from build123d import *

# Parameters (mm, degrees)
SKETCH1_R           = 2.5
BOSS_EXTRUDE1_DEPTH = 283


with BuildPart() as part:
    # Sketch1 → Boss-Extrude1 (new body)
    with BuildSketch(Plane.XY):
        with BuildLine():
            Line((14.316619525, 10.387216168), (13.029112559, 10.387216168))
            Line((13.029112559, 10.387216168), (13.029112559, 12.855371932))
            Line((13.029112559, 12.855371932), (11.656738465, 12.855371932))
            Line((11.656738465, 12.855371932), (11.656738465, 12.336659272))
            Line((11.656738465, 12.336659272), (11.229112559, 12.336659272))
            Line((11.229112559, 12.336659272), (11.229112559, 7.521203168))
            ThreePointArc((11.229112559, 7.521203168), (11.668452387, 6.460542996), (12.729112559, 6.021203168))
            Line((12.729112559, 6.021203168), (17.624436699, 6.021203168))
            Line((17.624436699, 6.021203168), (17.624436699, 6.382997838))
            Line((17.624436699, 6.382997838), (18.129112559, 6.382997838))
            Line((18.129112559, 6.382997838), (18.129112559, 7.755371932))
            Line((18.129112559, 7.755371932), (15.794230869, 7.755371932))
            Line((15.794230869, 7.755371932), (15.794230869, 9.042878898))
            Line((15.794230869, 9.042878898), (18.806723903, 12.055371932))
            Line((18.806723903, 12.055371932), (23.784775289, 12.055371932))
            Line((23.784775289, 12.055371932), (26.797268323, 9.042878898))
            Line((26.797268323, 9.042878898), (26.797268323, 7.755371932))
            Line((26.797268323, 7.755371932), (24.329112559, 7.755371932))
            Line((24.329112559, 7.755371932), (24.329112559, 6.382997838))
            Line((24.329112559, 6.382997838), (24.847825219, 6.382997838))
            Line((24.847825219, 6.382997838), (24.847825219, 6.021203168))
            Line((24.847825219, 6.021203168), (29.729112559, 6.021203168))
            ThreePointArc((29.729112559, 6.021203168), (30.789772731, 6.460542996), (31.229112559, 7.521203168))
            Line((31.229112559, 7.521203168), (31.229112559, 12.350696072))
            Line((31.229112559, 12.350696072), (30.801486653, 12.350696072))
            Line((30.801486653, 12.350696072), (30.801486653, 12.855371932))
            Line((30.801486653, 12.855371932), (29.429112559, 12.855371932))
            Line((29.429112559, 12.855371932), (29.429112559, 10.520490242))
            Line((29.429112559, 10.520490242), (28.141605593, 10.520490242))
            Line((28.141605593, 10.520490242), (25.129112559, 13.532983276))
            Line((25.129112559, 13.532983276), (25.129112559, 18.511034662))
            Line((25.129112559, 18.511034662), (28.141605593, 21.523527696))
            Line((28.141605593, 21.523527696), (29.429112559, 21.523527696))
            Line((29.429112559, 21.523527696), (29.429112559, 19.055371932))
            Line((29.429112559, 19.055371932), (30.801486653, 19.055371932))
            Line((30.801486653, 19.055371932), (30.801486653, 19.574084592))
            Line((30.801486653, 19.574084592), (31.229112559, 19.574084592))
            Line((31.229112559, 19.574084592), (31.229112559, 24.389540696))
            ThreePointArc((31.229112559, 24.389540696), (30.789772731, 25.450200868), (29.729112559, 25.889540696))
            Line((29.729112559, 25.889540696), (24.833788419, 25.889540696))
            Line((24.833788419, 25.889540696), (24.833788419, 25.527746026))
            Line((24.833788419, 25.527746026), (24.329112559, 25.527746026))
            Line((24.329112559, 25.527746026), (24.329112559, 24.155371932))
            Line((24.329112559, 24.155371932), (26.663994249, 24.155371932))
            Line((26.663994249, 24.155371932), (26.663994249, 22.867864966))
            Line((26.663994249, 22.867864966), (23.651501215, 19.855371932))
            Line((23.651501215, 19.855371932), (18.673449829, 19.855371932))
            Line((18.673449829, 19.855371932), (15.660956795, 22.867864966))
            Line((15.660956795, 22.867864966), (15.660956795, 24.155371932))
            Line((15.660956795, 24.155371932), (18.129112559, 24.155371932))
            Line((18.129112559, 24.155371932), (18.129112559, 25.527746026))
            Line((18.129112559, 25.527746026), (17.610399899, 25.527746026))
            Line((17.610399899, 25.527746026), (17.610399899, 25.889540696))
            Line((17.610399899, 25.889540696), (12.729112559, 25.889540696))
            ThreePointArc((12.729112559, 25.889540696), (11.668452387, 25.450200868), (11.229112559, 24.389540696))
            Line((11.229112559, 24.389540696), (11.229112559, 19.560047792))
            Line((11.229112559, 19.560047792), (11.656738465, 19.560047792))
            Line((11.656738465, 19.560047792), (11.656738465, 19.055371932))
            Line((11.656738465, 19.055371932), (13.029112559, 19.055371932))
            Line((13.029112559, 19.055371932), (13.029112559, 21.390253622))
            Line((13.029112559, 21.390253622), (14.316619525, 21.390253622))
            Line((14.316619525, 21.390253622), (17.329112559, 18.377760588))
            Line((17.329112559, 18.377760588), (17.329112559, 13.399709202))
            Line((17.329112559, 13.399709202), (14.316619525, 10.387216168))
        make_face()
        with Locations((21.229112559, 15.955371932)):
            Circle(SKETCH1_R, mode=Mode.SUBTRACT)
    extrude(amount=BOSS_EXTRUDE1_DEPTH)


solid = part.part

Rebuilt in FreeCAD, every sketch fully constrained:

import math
import FreeCAD as App
import Part
import Sketcher

V = App.Vector

doc = App.newDocument("Part")
params = doc.addObject("Spreadsheet::Sheet", "Params")
for row, (alias, value) in enumerate([
    ("sketch1_diameter", "5 mm"),
    ("sketch1_radius", "1.5 mm"),
    ("pad1_length", "283 mm"),
], start=1):
    params.set(f"A{row}", alias)
    params.set(f"B{row}", "=" + value)
    params.setAlias(f"B{row}", alias)

body = doc.addObject("PartDesign::Body", "Body")

# Sketch on XY plane
sketch1 = body.newObject("Sketcher::SketchObject", "Sketch")
sketch1.AttachmentSupport = (doc.getObject("XY_Plane"), [""])
sketch1.MapMode = "FlatFace"
sketch1.addGeometry(Part.LineSegment(V(14.31662, 10.387216, 0), V(13.029113, 10.387216, 0)), False)
sketch1.addGeometry(Part.LineSegment(V(13.029113, 10.387216, 0), V(13.029113, 12.855372, 0)), False)
sketch1.addGeometry(Part.LineSegment(V(13.029113, 12.855372, 0), V(11.656738, 12.855372, 0)), False)
sketch1.addGeometry(Part.LineSegment(V(11.656738, 12.855372, 0), V(11.656738, 12.336659, 0)), False)
sketch1.addGeometry(Part.LineSegment(V(11.656738, 12.336659, 0), V(11.229113, 12.336659, 0)), False)
sketch1.addGeometry(Part.LineSegment(V(11.229113, 12.336659, 0), V(11.229113, 7.521203, 0)), False)
sketch1.addGeometry(Part.ArcOfCircle(Part.Circle(V(12.729113, 7.521203, 0), V(0, 0, 1), 1.5), math.radians(180), math.radians(270)), False)
sketch1.addGeometry(Part.LineSegment(V(12.729113, 6.021203, 0), V(17.624437, 6.021203, 0)), False)
sketch1.addGeometry(Part.LineSegment(V(17.624437, 6.021203, 0), V(17.624437, 6.382998, 0)), False)
sketch1.addGeometry(Part.LineSegment(V(17.624437, 6.382998, 0), V(18.129113, 6.382998, 0)), False)
sketch1.addGeometry(Part.LineSegment(V(18.129113, 6.382998, 0), V(18.129113, 7.755372, 0)), False)
sketch1.addGeometry(Part.LineSegment(V(18.129113, 7.755372, 0), V(15.794231, 7.755372, 0)), False)
sketch1.addGeometry(Part.LineSegment(V(15.794231, 7.755372, 0), V(15.794231, 9.042879, 0)), False)
sketch1.addGeometry(Part.LineSegment(V(15.794231, 9.042879, 0), V(18.806724, 12.055372, 0)), False)
sketch1.addGeometry(Part.LineSegment(V(18.806724, 12.055372, 0), V(23.784775, 12.055372, 0)), False)
sketch1.addGeometry(Part.LineSegment(V(23.784775, 12.055372, 0), V(26.797268, 9.042879, 0)), False)
sketch1.addGeometry(Part.LineSegment(V(26.797268, 9.042879, 0), V(26.797268, 7.755372, 0)), False)
sketch1.addGeometry(Part.LineSegment(V(26.797268, 7.755372, 0), V(24.329113, 7.755372, 0)), False)
sketch1.addGeometry(Part.LineSegment(V(24.329113, 7.755372, 0), V(24.329113, 6.382998, 0)), False)
sketch1.addGeometry(Part.LineSegment(V(24.329113, 6.382998, 0), V(24.847825, 6.382998, 0)), False)
sketch1.addGeometry(Part.LineSegment(V(24.847825, 6.382998, 0), V(24.847825, 6.021203, 0)), False)
sketch1.addGeometry(Part.LineSegment(V(24.847825, 6.021203, 0), V(29.729113, 6.021203, 0)), False)
sketch1.addGeometry(Part.ArcOfCircle(Part.Circle(V(29.729113, 7.521203, 0), V(0, 0, 1), 1.5), math.radians(-90), math.radians(0)), False)
sketch1.addGeometry(Part.LineSegment(V(31.229113, 7.521203, 0), V(31.229113, 12.350696, 0)), False)
sketch1.addGeometry(Part.LineSegment(V(31.229113, 12.350696, 0), V(30.801487, 12.350696, 0)), False)
sketch1.addGeometry(Part.LineSegment(V(30.801487, 12.350696, 0), V(30.801487, 12.855372, 0)), False)
sketch1.addGeometry(Part.LineSegment(V(30.801487, 12.855372, 0), V(29.429113, 12.855372, 0)), False)
sketch1.addGeometry(Part.LineSegment(V(29.429113, 12.855372, 0), V(29.429113, 10.52049, 0)), False)
sketch1.addGeometry(Part.LineSegment(V(29.429113, 10.52049, 0), V(28.141606, 10.52049, 0)), False)
sketch1.addGeometry(Part.LineSegment(V(28.141606, 10.52049, 0), V(25.129113, 13.532983, 0)), False)
sketch1.addGeometry(Part.LineSegment(V(25.129113, 13.532983, 0), V(25.129113, 18.511035, 0)), False)
sketch1.addGeometry(Part.LineSegment(V(25.129113, 18.511035, 0), V(28.141606, 21.523528, 0)), False)
sketch1.addGeometry(Part.LineSegment(V(28.141606, 21.523528, 0), V(29.429113, 21.523528, 0)), False)
sketch1.addGeometry(Part.LineSegment(V(29.429113, 21.523528, 0), V(29.429113, 19.055372, 0)), False)
sketch1.addGeometry(Part.LineSegment(V(29.429113, 19.055372, 0), V(30.801487, 19.055372, 0)), False)
sketch1.addGeometry(Part.LineSegment(V(30.801487, 19.055372, 0), V(30.801487, 19.574085, 0)), False)
sketch1.addGeometry(Part.LineSegment(V(30.801487, 19.574085, 0), V(31.229113, 19.574085, 0)), False)
sketch1.addGeometry(Part.LineSegment(V(31.229113, 19.574085, 0), V(31.229113, 24.389541, 0)), False)
sketch1.addGeometry(Part.ArcOfCircle(Part.Circle(V(29.729113, 24.389541, 0), V(0, 0, 1), 1.5), math.radians(0), math.radians(90)), False)
sketch1.addGeometry(Part.LineSegment(V(29.729113, 25.889541, 0), V(24.833788, 25.889541, 0)), False)
sketch1.addGeometry(Part.LineSegment(V(24.833788, 25.889541, 0), V(24.833788, 25.527746, 0)), False)
sketch1.addGeometry(Part.LineSegment(V(24.833788, 25.527746, 0), V(24.329113, 25.527746, 0)), False)
sketch1.addGeometry(Part.LineSegment(V(24.329113, 25.527746, 0), V(24.329113, 24.155372, 0)), False)
sketch1.addGeometry(Part.LineSegment(V(24.329113, 24.155372, 0), V(26.663994, 24.155372, 0)), False)
sketch1.addGeometry(Part.LineSegment(V(26.663994, 24.155372, 0), V(26.663994, 22.867865, 0)), False)
sketch1.addGeometry(Part.LineSegment(V(26.663994, 22.867865, 0), V(23.651501, 19.855372, 0)), False)
sketch1.addGeometry(Part.LineSegment(V(23.651501, 19.855372, 0), V(18.67345, 19.855372, 0)), False)
sketch1.addGeometry(Part.LineSegment(V(18.67345, 19.855372, 0), V(15.660957, 22.867865, 0)), False)
sketch1.addGeometry(Part.LineSegment(V(15.660957, 22.867865, 0), V(15.660957, 24.155372, 0)), False)
sketch1.addGeometry(Part.LineSegment(V(15.660957, 24.155372, 0), V(18.129113, 24.155372, 0)), False)
sketch1.addGeometry(Part.LineSegment(V(18.129113, 24.155372, 0), V(18.129113, 25.527746, 0)), False)
sketch1.addGeometry(Part.LineSegment(V(18.129113, 25.527746, 0), V(17.6104, 25.527746, 0)), False)
sketch1.addGeometry(Part.LineSegment(V(17.6104, 25.527746, 0), V(17.6104, 25.889541, 0)), False)
sketch1.addGeometry(Part.LineSegment(V(17.6104, 25.889541, 0), V(12.729113, 25.889541, 0)), False)
sketch1.addGeometry(Part.ArcOfCircle(Part.Circle(V(12.729113, 24.389541, 0), V(0, 0, 1), 1.5), math.radians(90), math.radians(180)), False)
sketch1.addGeometry(Part.LineSegment(V(11.229113, 24.389541, 0), V(11.229113, 19.560048, 0)), False)
sketch1.addGeometry(Part.LineSegment(V(11.229113, 19.560048, 0), V(11.656738, 19.560048, 0)), False)
sketch1.addGeometry(Part.LineSegment(V(11.656738, 19.560048, 0), V(11.656738, 19.055372, 0)), False)
sketch1.addGeometry(Part.LineSegment(V(11.656738, 19.055372, 0), V(13.029113, 19.055372, 0)), False)
sketch1.addGeometry(Part.LineSegment(V(13.029113, 19.055372, 0), V(13.029113, 21.390254, 0)), False)
sketch1.addGeometry(Part.LineSegment(V(13.029113, 21.390254, 0), V(14.31662, 21.390254, 0)), False)
sketch1.addGeometry(Part.LineSegment(V(14.31662, 21.390254, 0), V(17.329113, 18.377761, 0)), False)
sketch1.addGeometry(Part.LineSegment(V(17.329113, 18.377761, 0), V(17.329113, 13.399709, 0)), False)
sketch1.addGeometry(Part.LineSegment(V(17.329113, 13.399709, 0), V(14.31662, 10.387216, 0)), False)
sketch1.addGeometry(Part.Circle(V(21.229113, 15.955372, 0), V(0, 0, 1), 2.5), False)
sketch1.addConstraint(Sketcher.Constraint("Coincident", 0, 2, 1, 1))
sketch1.addConstraint(Sketcher.Constraint("Coincident", 1, 2, 2, 1))
sketch1.addConstraint(Sketcher.Constraint("Coincident", 2, 2, 3, 1))
sketch1.addConstraint(Sketcher.Constraint("Coincident", 3, 2, 4, 1))
sketch1.addConstraint(Sketcher.Constraint("Coincident", 4, 2, 5, 1))
sketch1.addConstraint(Sketcher.Constraint("Tangent", 5, 2, 6, 1))
sketch1.addConstraint(Sketcher.Constraint("Tangent", 6, 2, 7, 1))
sketch1.addConstraint(Sketcher.Constraint("Coincident", 7, 2, 8, 1))
sketch1.addConstraint(Sketcher.Constraint("Coincident", 8, 2, 9, 1))
sketch1.addConstraint(Sketcher.Constraint("Coincident", 9, 2, 10, 1))
sketch1.addConstraint(Sketcher.Constraint("Coincident", 10, 2, 11, 1))
sketch1.addConstraint(Sketcher.Constraint("Coincident", 11, 2, 12, 1))
sketch1.addConstraint(Sketcher.Constraint("Coincident", 12, 2, 13, 1))
sketch1.addConstraint(Sketcher.Constraint("Coincident", 13, 2, 14, 1))
sketch1.addConstraint(Sketcher.Constraint("Coincident", 14, 2, 15, 1))
sketch1.addConstraint(Sketcher.Constraint("Coincident", 15, 2, 16, 1))
sketch1.addConstraint(Sketcher.Constraint("Coincident", 16, 2, 17, 1))
sketch1.addConstraint(Sketcher.Constraint("Coincident", 17, 2, 18, 1))
sketch1.addConstraint(Sketcher.Constraint("Coincident", 18, 2, 19, 1))
sketch1.addConstraint(Sketcher.Constraint("Coincident", 19, 2, 20, 1))
sketch1.addConstraint(Sketcher.Constraint("Coincident", 20, 2, 21, 1))
sketch1.addConstraint(Sketcher.Constraint("Tangent", 21, 2, 22, 1))
sketch1.addConstraint(Sketcher.Constraint("Tangent", 22, 2, 23, 1))
sketch1.addConstraint(Sketcher.Constraint("Coincident", 23, 2, 24, 1))
sketch1.addConstraint(Sketcher.Constraint("Coincident", 24, 2, 25, 1))
sketch1.addConstraint(Sketcher.Constraint("Coincident", 25, 2, 26, 1))
sketch1.addConstraint(Sketcher.Constraint("Coincident", 26, 2, 27, 1))
sketch1.addConstraint(Sketcher.Constraint("Coincident", 27, 2, 28, 1))
sketch1.addConstraint(Sketcher.Constraint("Coincident", 28, 2, 29, 1))
sketch1.addConstraint(Sketcher.Constraint("Coincident", 29, 2, 30, 1))
sketch1.addConstraint(Sketcher.Constraint("Coincident", 30, 2, 31, 1))
sketch1.addConstraint(Sketcher.Constraint("Coincident", 31, 2, 32, 1))
sketch1.addConstraint(Sketcher.Constraint("Coincident", 32, 2, 33, 1))
sketch1.addConstraint(Sketcher.Constraint("Coincident", 33, 2, 34, 1))
sketch1.addConstraint(Sketcher.Constraint("Coincident", 34, 2, 35, 1))
sketch1.addConstraint(Sketcher.Constraint("Coincident", 35, 2, 36, 1))
sketch1.addConstraint(Sketcher.Constraint("Coincident", 36, 2, 37, 1))
sketch1.addConstraint(Sketcher.Constraint("Tangent", 37, 2, 38, 1))
sketch1.addConstraint(Sketcher.Constraint("Tangent", 38, 2, 39, 1))
sketch1.addConstraint(Sketcher.Constraint("Coincident", 39, 2, 40, 1))
sketch1.addConstraint(Sketcher.Constraint("Coincident", 40, 2, 41, 1))
sketch1.addConstraint(Sketcher.Constraint("Coincident", 41, 2, 42, 1))
sketch1.addConstraint(Sketcher.Constraint("Coincident", 42, 2, 43, 1))
sketch1.addConstraint(Sketcher.Constraint("Coincident", 43, 2, 44, 1))
sketch1.addConstraint(Sketcher.Constraint("Coincident", 44, 2, 45, 1))
sketch1.addConstraint(Sketcher.Constraint("Coincident", 45, 2, 46, 1))
sketch1.addConstraint(Sketcher.Constraint("Coincident", 46, 2, 47, 1))
sketch1.addConstraint(Sketcher.Constraint("Coincident", 47, 2, 48, 1))
sketch1.addConstraint(Sketcher.Constraint("Coincident", 48, 2, 49, 1))
sketch1.addConstraint(Sketcher.Constraint("Coincident", 49, 2, 50, 1))
sketch1.addConstraint(Sketcher.Constraint("Coincident", 50, 2, 51, 1))
sketch1.addConstraint(Sketcher.Constraint("Coincident", 51, 2, 52, 1))
sketch1.addConstraint(Sketcher.Constraint("Coincident", 52, 2, 53, 1))
sketch1.addConstraint(Sketcher.Constraint("Tangent", 53, 2, 54, 1))
sketch1.addConstraint(Sketcher.Constraint("Tangent", 54, 2, 55, 1))
sketch1.addConstraint(Sketcher.Constraint("Coincident", 55, 2, 56, 1))
sketch1.addConstraint(Sketcher.Constraint("Coincident", 56, 2, 57, 1))
sketch1.addConstraint(Sketcher.Constraint("Coincident", 57, 2, 58, 1))
sketch1.addConstraint(Sketcher.Constraint("Coincident", 58, 2, 59, 1))
sketch1.addConstraint(Sketcher.Constraint("Coincident", 59, 2, 60, 1))
sketch1.addConstraint(Sketcher.Constraint("Coincident", 60, 2, 61, 1))
sketch1.addConstraint(Sketcher.Constraint("Coincident", 61, 2, 62, 1))
sketch1.addConstraint(Sketcher.Constraint("Coincident", 62, 2, 63, 1))
sketch1.addConstraint(Sketcher.Constraint("Coincident", 63, 2, 0, 1))
sketch1.addConstraint(Sketcher.Constraint("Horizontal", 0))
sketch1.addConstraint(Sketcher.Constraint("Vertical", 1))
sketch1.addConstraint(Sketcher.Constraint("Horizontal", 2))
sketch1.addConstraint(Sketcher.Constraint("Vertical", 3))
sketch1.addConstraint(Sketcher.Constraint("Horizontal", 4))
sketch1.addConstraint(Sketcher.Constraint("Vertical", 5))
sketch1.addConstraint(Sketcher.Constraint("Horizontal", 7))
sketch1.addConstraint(Sketcher.Constraint("Vertical", 8))
sketch1.addConstraint(Sketcher.Constraint("Horizontal", 9))
sketch1.addConstraint(Sketcher.Constraint("Vertical", 10))
sketch1.addConstraint(Sketcher.Constraint("Horizontal", 11))
sketch1.addConstraint(Sketcher.Constraint("Vertical", 12))
sketch1.addConstraint(Sketcher.Constraint("Horizontal", 14))
sketch1.addConstraint(Sketcher.Constraint("Vertical", 16))
sketch1.addConstraint(Sketcher.Constraint("Horizontal", 17))
sketch1.addConstraint(Sketcher.Constraint("Vertical", 18))
sketch1.addConstraint(Sketcher.Constraint("Horizontal", 19))
sketch1.addConstraint(Sketcher.Constraint("Vertical", 20))
sketch1.addConstraint(Sketcher.Constraint("Horizontal", 21))
sketch1.addConstraint(Sketcher.Constraint("Vertical", 23))
sketch1.addConstraint(Sketcher.Constraint("Horizontal", 24))
sketch1.addConstraint(Sketcher.Constraint("Vertical", 25))
sketch1.addConstraint(Sketcher.Constraint("Horizontal", 26))
sketch1.addConstraint(Sketcher.Constraint("Vertical", 27))
sketch1.addConstraint(Sketcher.Constraint("Horizontal", 28))
sketch1.addConstraint(Sketcher.Constraint("Vertical", 30))
sketch1.addConstraint(Sketcher.Constraint("Horizontal", 32))
sketch1.addConstraint(Sketcher.Constraint("Vertical", 33))
sketch1.addConstraint(Sketcher.Constraint("Horizontal", 34))
sketch1.addConstraint(Sketcher.Constraint("Vertical", 35))
sketch1.addConstraint(Sketcher.Constraint("Horizontal", 36))
sketch1.addConstraint(Sketcher.Constraint("Vertical", 37))
sketch1.addConstraint(Sketcher.Constraint("Horizontal", 39))
sketch1.addConstraint(Sketcher.Constraint("Vertical", 40))
sketch1.addConstraint(Sketcher.Constraint("Horizontal", 41))
sketch1.addConstraint(Sketcher.Constraint("Vertical", 42))
sketch1.addConstraint(Sketcher.Constraint("Horizontal", 43))
sketch1.addConstraint(Sketcher.Constraint("Vertical", 44))
sketch1.addConstraint(Sketcher.Constraint("Horizontal", 46))
sketch1.addConstraint(Sketcher.Constraint("Vertical", 48))
sketch1.addConstraint(Sketcher.Constraint("Horizontal", 49))
sketch1.addConstraint(Sketcher.Constraint("Vertical", 50))
sketch1.addConstraint(Sketcher.Constraint("Horizontal", 51))
sketch1.addConstraint(Sketcher.Constraint("Vertical", 52))
sketch1.addConstraint(Sketcher.Constraint("Horizontal", 53))
sketch1.addConstraint(Sketcher.Constraint("Vertical", 55))
sketch1.addConstraint(Sketcher.Constraint("Horizontal", 56))
sketch1.addConstraint(Sketcher.Constraint("Vertical", 57))
sketch1.addConstraint(Sketcher.Constraint("Horizontal", 58))
sketch1.addConstraint(Sketcher.Constraint("Vertical", 59))
sketch1.addConstraint(Sketcher.Constraint("Horizontal", 60))
sketch1.addConstraint(Sketcher.Constraint("Vertical", 62))
sketch1.addConstraint(Sketcher.Constraint("Equal", 6, 22))
sketch1.addConstraint(Sketcher.Constraint("Equal", 22, 38))
sketch1.addConstraint(Sketcher.Constraint("Equal", 38, 54))
sketch1.addConstraint(Sketcher.Constraint("Perpendicular", 13, 15))
sketch1.addConstraint(Sketcher.Constraint("Parallel", 15, 29))
sketch1.addConstraint(Sketcher.Constraint("Perpendicular", 29, 31))
sketch1.addConstraint(Sketcher.Constraint("Parallel", 31, 45))
sketch1.addConstraint(Sketcher.Constraint("Perpendicular", 45, 47))
sketch1.addConstraint(Sketcher.Constraint("Parallel", 47, 61))
sketch1.addConstraint(Sketcher.Constraint("Perpendicular", 61, 63))
sketch1.addConstraint(Sketcher.Constraint("Horizontal", 6, 3, 22, 3))
sketch1.addConstraint(Sketcher.Constraint("Horizontal", 38, 3, 54, 3))
sketch1.addConstraint(Sketcher.Constraint("Horizontal", 12, 2, 15, 2))
sketch1.addConstraint(Sketcher.Constraint("Horizontal", 11, 2, 16, 2))
sketch1.addConstraint(Sketcher.Constraint("Horizontal", 9, 2, 18, 2))
sketch1.addConstraint(Sketcher.Constraint("Horizontal", 2, 2, 25, 2))
sketch1.addConstraint(Sketcher.Constraint("Horizontal", 44, 2, 47, 2))
sketch1.addConstraint(Sketcher.Constraint("Horizontal", 43, 2, 48, 2))
sketch1.addConstraint(Sketcher.Constraint("Horizontal", 41, 2, 50, 2))
sketch1.addConstraint(Sketcher.Constraint("Horizontal", 34, 2, 57, 2))
sketch1.addConstraint(Sketcher.Constraint("Vertical", 22, 3, 38, 3))
sketch1.addConstraint(Sketcher.Constraint("Vertical", 6, 3, 54, 3))
sketch1.addConstraint(Sketcher.Constraint("Vertical", 28, 2, 31, 2))
sketch1.addConstraint(Sketcher.Constraint("Vertical", 27, 2, 32, 2))
sketch1.addConstraint(Sketcher.Constraint("Vertical", 25, 2, 34, 2))
sketch1.addConstraint(Sketcher.Constraint("Vertical", 18, 2, 41, 2))
sketch1.addConstraint(Sketcher.Constraint("Vertical", 10, 2, 49, 2))
sketch1.addConstraint(Sketcher.Constraint("Vertical", 3, 2, 56, 2))
sketch1.addConstraint(Sketcher.Constraint("Vertical", 1, 2, 58, 2))
sketch1.addConstraint(Sketcher.Constraint("Vertical", 60, 2, 63, 2))
sketch1.addConstraint(Sketcher.Constraint("Equal", 4, 24))
sketch1.addConstraint(Sketcher.Constraint("Equal", 2, 26))
sketch1.addConstraint(Sketcher.Constraint("Equal", 0, 28))
sketch1.addConstraint(Sketcher.Constraint("Equal", 7, 39))
sketch1.addConstraint(Sketcher.Constraint("Equal", 9, 41))
sketch1.addConstraint(Sketcher.Constraint("Equal", 11, 43))
sketch1.addConstraint(Sketcher.Constraint("Equal", 14, 46))
sketch1.addConstraint(Sketcher.Constraint("Equal", 17, 49))
sketch1.addConstraint(Sketcher.Constraint("Equal", 19, 51))
sketch1.addConstraint(Sketcher.Constraint("Equal", 49, 1))
sketch1.addConstraint(Sketcher.Constraint("Equal", 51, 3))
sketch1.addConstraint(Sketcher.Constraint("Equal", 58, 10))
sketch1.addConstraint(Sketcher.Constraint("Equal", 60, 12))
sketch1.addConstraint(Sketcher.Constraint("Equal", 41, 25))
sketch1.addConstraint(Sketcher.Constraint("Equal", 43, 27))
sketch1.addConstraint(Sketcher.Constraint("Equal", 46, 30))
sketch1.addConstraint(Sketcher.Constraint("Equal", 1, 33))
sketch1.addConstraint(Sketcher.Constraint("Equal", 3, 35))
sketch1.addConstraint(Sketcher.Constraint("Equal", 5, 37))
sketch1.addConstraint(Sketcher.Constraint("Equal", 20, 40))
sketch1.addConstraint(Sketcher.Constraint("Equal", 18, 42))
sketch1.addConstraint(Sketcher.Constraint("Equal", 16, 44))
sketch1.addConstraint(Sketcher.Constraint("Equal", 23, 55))
sketch1.addConstraint(Sketcher.Constraint("Equal", 27, 59))
sketch1.addConstraint(Sketcher.Constraint("Equal", 30, 62))
sketch1.addConstraint(Sketcher.Constraint("Equal", 13, 15))
sketch1.addConstraint(Sketcher.Constraint("Equal", 15, 29))
sketch1.addConstraint(Sketcher.Constraint("Diameter", 64, 5.0))
sketch1.addConstraint(Sketcher.Constraint("Radius", 6, 1.5))
sketch1.addConstraint(Sketcher.Constraint("DistanceX", 11, 2, 11, 1, 2.334882))
sketch1.addConstraint(Sketcher.Constraint("DistanceX", 14, 1, 14, 2, 4.978051))
sketch1.addConstraint(Sketcher.Constraint("DistanceX", -1, 1, 45, 2, 23.651501))
sketch1.addConstraint(Sketcher.Constraint("DistanceX", -1, 1, 51, 2, 17.6104))
sketch1.addConstraint(Sketcher.Constraint("Distance", 13, 4.260309))
sketch1.addConstraint(Sketcher.Constraint("DistanceX", 0, 2, 0, 1, 1.287507))
sketch1.addConstraint(Sketcher.Constraint("DistanceX", 2, 2, 2, 1, 1.372374))
sketch1.addConstraint(Sketcher.Constraint("DistanceX", 4, 2, 4, 1, 0.427626))
sketch1.addConstraint(Sketcher.Constraint("DistanceX", 7, 1, 7, 2, 4.895324))
sketch1.addConstraint(Sketcher.Constraint("DistanceX", 9, 1, 9, 2, 0.504676))
sketch1.addConstraint(Sketcher.Constraint("DistanceX", 17, 2, 17, 1, 2.468156))
sketch1.addConstraint(Sketcher.Constraint("DistanceY", 5, 2, 5, 1, 4.815456))
sketch1.addConstraint(Sketcher.Constraint("DistanceY", 8, 1, 8, 2, 0.361795))
sketch1.addConstraint(Sketcher.Constraint("DistanceY", -1, 1, 38, 3, 24.389541))
sketch1.addConstraint(Sketcher.Constraint("DistanceY", -1, 1, 64, 3, 15.955372))
sketch1.addConstraint(Sketcher.Constraint("DistanceX", -1, 1, 64, 3, 21.229113))
sketch1.setExpression("Constraints[173]", "Params.sketch1_diameter")
sketch1.setExpression("Constraints[174]", "Params.sketch1_radius")
pad1 = body.newObject("PartDesign::Pad", "Pad")
pad1.Profile = sketch1
pad1.setExpression("Length", "Params.pad1_length")

doc.recompute()
